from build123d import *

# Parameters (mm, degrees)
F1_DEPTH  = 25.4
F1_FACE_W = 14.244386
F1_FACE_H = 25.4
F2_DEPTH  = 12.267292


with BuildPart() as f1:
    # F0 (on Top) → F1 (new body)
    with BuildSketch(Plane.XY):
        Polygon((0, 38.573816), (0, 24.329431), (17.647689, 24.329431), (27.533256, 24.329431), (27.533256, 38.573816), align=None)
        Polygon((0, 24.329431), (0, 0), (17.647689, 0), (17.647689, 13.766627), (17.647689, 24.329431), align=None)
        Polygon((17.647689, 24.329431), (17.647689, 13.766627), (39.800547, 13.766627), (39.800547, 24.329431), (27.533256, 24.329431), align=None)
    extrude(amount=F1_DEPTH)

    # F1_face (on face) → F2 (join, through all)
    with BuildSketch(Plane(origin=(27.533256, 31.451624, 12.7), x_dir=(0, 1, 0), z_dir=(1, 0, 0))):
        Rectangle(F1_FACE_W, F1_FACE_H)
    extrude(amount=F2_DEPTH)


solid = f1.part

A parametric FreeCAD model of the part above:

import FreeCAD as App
import Part
import Sketcher

V = App.Vector
Q = App.Units.Quantity

doc = App.newDocument("Part")
body = doc.addObject("PartDesign::Body", "Body")

sketch1 = body.newObject("Sketcher::SketchObject", "Sketch")
sketch1.AttachmentSupport = (doc.getObject("XY_Plane"), [""])
sketch1.MapMode = "FlatFace"
sketch1.addGeometry([
    Part.LineSegment(V(0, 39, 0), V(0, 0, 0)),
    Part.LineSegment(V(0, 0, 0), V(18, 0, 0)),
    Part.LineSegment(V(18, 0, 0), V(18, 14, 0)),
    Part.LineSegment(V(18, 14, 0), V(40, 14, 0)),
    Part.LineSegment(V(40, 14, 0), V(40, 24, 0)),
    Part.LineSegment(V(40, 24, 0), V(28, 24, 0)),
    Part.LineSegment(V(28, 24, 0), V(28, 39, 0)),
    Part.LineSegment(V(28, 39, 0), V(0, 39, 0)),
], False)
sketch1.addConstraint([
    Sketcher.Constraint("Coincident", 0, 2, 1, 1),
    Sketcher.Constraint("Coincident", 1, 2, 2, 1),
    Sketcher.Constraint("Coincident", 2, 2, 3, 1),
    Sketcher.Constraint("Coincident", 3, 2, 4, 1),
    Sketcher.Constraint("Coincident", 4, 2, 5, 1),
    Sketcher.Constraint("Coincident", 5, 2, 6, 1),
    Sketcher.Constraint("Coincident", 6, 2, 7, 1),
    Sketcher.Constraint("Coincident", 7, 2, 0, 1),
    Sketcher.Constraint("Vertical", 0),
    Sketcher.Constraint("Horizontal", 1),
    Sketcher.Constraint("Vertical", 2),
    Sketcher.Constraint("Horizontal", 3),
    Sketcher.Constraint("Vertical", 4),
    Sketcher.Constraint("Horizontal", 5),
    Sketcher.Constraint("Vertical", 6),
    Sketcher.Constraint("Horizontal", 7),
    Sketcher.Constraint("Coincident", 0, 2, -1, 1),
    Sketcher.Constraint("DistanceX", 1, 1, 1, 2, 17.647689),
    Sketcher.Constraint("DistanceX", 3, 1, 3, 2, 22.152858),
    Sketcher.Constraint("DistanceX", 5, 2, 5, 1, 12.267291),
    Sketcher.Constraint("DistanceY", 0, 2, 0, 1, 38.573816),
    Sketcher.Constraint("DistanceY", 2, 1, 2, 2, 13.766627),
    Sketcher.Constraint("DistanceY", 4, 1, 4, 2, 10.562804),
])
pad1 = body.newObject("PartDesign::Pad", "Pad")
pad1.Profile = sketch1
pad1.Length = Q("1 in")

sketch2 = body.newObject("Sketcher::SketchObject", "Sketch001")
sketch2.AttachmentSupport = (doc.getObject("YZ_Plane"), [""])
sketch2.MapMode = "FlatFace"
sketch2.AttachmentOffset = App.Placement(V(0, 0, 27.533256), App.Rotation())
sketch2.addGeometry([
    Part.LineSegment(V(24, 25, 0), V(24, 0, 0)),
    Part.LineSegment(V(24, 0, 0), V(39, 0, 0)),
    Part.LineSegment(V(39, 0, 0), V(39, 25, 0)),
    Part.LineSegment(V(39, 25, 0), V(24, 25, 0)),
], False)
sketch2.addConstraint([
    Sketcher.Constraint("Coincident", 0, 2, 1, 1),
    Sketcher.Constraint("Coincident", 1, 2, 2, 1),
    Sketcher.Constraint("Coincident", 2, 2, 3, 1),
    Sketcher.Constraint("Coincident", 3, 2, 0, 1),
    Sketcher.Constraint("Vertical", 0),
    Sketcher.Constraint("Horizontal", 1),
    Sketcher.Constraint("Vertical", 2),
    Sketcher.Constraint("Horizontal", 3),
    Sketcher.Constraint("PointOnObject", 0, 2, -1),
    Sketcher.Constraint("DistanceY", 0, 2, 0, 1, Q("1 in")),
    Sketcher.Constraint("DistanceX", 1, 1, 1, 2, 14.244386),
    Sketcher.Constraint("DistanceX", -1, 1, 0, 2, 24.329431),
])
pad2 = body.newObject("PartDesign::Pad", "Pad001")
pad2.Profile = sketch2
pad2.Length = 12.267292

doc.recompute()
